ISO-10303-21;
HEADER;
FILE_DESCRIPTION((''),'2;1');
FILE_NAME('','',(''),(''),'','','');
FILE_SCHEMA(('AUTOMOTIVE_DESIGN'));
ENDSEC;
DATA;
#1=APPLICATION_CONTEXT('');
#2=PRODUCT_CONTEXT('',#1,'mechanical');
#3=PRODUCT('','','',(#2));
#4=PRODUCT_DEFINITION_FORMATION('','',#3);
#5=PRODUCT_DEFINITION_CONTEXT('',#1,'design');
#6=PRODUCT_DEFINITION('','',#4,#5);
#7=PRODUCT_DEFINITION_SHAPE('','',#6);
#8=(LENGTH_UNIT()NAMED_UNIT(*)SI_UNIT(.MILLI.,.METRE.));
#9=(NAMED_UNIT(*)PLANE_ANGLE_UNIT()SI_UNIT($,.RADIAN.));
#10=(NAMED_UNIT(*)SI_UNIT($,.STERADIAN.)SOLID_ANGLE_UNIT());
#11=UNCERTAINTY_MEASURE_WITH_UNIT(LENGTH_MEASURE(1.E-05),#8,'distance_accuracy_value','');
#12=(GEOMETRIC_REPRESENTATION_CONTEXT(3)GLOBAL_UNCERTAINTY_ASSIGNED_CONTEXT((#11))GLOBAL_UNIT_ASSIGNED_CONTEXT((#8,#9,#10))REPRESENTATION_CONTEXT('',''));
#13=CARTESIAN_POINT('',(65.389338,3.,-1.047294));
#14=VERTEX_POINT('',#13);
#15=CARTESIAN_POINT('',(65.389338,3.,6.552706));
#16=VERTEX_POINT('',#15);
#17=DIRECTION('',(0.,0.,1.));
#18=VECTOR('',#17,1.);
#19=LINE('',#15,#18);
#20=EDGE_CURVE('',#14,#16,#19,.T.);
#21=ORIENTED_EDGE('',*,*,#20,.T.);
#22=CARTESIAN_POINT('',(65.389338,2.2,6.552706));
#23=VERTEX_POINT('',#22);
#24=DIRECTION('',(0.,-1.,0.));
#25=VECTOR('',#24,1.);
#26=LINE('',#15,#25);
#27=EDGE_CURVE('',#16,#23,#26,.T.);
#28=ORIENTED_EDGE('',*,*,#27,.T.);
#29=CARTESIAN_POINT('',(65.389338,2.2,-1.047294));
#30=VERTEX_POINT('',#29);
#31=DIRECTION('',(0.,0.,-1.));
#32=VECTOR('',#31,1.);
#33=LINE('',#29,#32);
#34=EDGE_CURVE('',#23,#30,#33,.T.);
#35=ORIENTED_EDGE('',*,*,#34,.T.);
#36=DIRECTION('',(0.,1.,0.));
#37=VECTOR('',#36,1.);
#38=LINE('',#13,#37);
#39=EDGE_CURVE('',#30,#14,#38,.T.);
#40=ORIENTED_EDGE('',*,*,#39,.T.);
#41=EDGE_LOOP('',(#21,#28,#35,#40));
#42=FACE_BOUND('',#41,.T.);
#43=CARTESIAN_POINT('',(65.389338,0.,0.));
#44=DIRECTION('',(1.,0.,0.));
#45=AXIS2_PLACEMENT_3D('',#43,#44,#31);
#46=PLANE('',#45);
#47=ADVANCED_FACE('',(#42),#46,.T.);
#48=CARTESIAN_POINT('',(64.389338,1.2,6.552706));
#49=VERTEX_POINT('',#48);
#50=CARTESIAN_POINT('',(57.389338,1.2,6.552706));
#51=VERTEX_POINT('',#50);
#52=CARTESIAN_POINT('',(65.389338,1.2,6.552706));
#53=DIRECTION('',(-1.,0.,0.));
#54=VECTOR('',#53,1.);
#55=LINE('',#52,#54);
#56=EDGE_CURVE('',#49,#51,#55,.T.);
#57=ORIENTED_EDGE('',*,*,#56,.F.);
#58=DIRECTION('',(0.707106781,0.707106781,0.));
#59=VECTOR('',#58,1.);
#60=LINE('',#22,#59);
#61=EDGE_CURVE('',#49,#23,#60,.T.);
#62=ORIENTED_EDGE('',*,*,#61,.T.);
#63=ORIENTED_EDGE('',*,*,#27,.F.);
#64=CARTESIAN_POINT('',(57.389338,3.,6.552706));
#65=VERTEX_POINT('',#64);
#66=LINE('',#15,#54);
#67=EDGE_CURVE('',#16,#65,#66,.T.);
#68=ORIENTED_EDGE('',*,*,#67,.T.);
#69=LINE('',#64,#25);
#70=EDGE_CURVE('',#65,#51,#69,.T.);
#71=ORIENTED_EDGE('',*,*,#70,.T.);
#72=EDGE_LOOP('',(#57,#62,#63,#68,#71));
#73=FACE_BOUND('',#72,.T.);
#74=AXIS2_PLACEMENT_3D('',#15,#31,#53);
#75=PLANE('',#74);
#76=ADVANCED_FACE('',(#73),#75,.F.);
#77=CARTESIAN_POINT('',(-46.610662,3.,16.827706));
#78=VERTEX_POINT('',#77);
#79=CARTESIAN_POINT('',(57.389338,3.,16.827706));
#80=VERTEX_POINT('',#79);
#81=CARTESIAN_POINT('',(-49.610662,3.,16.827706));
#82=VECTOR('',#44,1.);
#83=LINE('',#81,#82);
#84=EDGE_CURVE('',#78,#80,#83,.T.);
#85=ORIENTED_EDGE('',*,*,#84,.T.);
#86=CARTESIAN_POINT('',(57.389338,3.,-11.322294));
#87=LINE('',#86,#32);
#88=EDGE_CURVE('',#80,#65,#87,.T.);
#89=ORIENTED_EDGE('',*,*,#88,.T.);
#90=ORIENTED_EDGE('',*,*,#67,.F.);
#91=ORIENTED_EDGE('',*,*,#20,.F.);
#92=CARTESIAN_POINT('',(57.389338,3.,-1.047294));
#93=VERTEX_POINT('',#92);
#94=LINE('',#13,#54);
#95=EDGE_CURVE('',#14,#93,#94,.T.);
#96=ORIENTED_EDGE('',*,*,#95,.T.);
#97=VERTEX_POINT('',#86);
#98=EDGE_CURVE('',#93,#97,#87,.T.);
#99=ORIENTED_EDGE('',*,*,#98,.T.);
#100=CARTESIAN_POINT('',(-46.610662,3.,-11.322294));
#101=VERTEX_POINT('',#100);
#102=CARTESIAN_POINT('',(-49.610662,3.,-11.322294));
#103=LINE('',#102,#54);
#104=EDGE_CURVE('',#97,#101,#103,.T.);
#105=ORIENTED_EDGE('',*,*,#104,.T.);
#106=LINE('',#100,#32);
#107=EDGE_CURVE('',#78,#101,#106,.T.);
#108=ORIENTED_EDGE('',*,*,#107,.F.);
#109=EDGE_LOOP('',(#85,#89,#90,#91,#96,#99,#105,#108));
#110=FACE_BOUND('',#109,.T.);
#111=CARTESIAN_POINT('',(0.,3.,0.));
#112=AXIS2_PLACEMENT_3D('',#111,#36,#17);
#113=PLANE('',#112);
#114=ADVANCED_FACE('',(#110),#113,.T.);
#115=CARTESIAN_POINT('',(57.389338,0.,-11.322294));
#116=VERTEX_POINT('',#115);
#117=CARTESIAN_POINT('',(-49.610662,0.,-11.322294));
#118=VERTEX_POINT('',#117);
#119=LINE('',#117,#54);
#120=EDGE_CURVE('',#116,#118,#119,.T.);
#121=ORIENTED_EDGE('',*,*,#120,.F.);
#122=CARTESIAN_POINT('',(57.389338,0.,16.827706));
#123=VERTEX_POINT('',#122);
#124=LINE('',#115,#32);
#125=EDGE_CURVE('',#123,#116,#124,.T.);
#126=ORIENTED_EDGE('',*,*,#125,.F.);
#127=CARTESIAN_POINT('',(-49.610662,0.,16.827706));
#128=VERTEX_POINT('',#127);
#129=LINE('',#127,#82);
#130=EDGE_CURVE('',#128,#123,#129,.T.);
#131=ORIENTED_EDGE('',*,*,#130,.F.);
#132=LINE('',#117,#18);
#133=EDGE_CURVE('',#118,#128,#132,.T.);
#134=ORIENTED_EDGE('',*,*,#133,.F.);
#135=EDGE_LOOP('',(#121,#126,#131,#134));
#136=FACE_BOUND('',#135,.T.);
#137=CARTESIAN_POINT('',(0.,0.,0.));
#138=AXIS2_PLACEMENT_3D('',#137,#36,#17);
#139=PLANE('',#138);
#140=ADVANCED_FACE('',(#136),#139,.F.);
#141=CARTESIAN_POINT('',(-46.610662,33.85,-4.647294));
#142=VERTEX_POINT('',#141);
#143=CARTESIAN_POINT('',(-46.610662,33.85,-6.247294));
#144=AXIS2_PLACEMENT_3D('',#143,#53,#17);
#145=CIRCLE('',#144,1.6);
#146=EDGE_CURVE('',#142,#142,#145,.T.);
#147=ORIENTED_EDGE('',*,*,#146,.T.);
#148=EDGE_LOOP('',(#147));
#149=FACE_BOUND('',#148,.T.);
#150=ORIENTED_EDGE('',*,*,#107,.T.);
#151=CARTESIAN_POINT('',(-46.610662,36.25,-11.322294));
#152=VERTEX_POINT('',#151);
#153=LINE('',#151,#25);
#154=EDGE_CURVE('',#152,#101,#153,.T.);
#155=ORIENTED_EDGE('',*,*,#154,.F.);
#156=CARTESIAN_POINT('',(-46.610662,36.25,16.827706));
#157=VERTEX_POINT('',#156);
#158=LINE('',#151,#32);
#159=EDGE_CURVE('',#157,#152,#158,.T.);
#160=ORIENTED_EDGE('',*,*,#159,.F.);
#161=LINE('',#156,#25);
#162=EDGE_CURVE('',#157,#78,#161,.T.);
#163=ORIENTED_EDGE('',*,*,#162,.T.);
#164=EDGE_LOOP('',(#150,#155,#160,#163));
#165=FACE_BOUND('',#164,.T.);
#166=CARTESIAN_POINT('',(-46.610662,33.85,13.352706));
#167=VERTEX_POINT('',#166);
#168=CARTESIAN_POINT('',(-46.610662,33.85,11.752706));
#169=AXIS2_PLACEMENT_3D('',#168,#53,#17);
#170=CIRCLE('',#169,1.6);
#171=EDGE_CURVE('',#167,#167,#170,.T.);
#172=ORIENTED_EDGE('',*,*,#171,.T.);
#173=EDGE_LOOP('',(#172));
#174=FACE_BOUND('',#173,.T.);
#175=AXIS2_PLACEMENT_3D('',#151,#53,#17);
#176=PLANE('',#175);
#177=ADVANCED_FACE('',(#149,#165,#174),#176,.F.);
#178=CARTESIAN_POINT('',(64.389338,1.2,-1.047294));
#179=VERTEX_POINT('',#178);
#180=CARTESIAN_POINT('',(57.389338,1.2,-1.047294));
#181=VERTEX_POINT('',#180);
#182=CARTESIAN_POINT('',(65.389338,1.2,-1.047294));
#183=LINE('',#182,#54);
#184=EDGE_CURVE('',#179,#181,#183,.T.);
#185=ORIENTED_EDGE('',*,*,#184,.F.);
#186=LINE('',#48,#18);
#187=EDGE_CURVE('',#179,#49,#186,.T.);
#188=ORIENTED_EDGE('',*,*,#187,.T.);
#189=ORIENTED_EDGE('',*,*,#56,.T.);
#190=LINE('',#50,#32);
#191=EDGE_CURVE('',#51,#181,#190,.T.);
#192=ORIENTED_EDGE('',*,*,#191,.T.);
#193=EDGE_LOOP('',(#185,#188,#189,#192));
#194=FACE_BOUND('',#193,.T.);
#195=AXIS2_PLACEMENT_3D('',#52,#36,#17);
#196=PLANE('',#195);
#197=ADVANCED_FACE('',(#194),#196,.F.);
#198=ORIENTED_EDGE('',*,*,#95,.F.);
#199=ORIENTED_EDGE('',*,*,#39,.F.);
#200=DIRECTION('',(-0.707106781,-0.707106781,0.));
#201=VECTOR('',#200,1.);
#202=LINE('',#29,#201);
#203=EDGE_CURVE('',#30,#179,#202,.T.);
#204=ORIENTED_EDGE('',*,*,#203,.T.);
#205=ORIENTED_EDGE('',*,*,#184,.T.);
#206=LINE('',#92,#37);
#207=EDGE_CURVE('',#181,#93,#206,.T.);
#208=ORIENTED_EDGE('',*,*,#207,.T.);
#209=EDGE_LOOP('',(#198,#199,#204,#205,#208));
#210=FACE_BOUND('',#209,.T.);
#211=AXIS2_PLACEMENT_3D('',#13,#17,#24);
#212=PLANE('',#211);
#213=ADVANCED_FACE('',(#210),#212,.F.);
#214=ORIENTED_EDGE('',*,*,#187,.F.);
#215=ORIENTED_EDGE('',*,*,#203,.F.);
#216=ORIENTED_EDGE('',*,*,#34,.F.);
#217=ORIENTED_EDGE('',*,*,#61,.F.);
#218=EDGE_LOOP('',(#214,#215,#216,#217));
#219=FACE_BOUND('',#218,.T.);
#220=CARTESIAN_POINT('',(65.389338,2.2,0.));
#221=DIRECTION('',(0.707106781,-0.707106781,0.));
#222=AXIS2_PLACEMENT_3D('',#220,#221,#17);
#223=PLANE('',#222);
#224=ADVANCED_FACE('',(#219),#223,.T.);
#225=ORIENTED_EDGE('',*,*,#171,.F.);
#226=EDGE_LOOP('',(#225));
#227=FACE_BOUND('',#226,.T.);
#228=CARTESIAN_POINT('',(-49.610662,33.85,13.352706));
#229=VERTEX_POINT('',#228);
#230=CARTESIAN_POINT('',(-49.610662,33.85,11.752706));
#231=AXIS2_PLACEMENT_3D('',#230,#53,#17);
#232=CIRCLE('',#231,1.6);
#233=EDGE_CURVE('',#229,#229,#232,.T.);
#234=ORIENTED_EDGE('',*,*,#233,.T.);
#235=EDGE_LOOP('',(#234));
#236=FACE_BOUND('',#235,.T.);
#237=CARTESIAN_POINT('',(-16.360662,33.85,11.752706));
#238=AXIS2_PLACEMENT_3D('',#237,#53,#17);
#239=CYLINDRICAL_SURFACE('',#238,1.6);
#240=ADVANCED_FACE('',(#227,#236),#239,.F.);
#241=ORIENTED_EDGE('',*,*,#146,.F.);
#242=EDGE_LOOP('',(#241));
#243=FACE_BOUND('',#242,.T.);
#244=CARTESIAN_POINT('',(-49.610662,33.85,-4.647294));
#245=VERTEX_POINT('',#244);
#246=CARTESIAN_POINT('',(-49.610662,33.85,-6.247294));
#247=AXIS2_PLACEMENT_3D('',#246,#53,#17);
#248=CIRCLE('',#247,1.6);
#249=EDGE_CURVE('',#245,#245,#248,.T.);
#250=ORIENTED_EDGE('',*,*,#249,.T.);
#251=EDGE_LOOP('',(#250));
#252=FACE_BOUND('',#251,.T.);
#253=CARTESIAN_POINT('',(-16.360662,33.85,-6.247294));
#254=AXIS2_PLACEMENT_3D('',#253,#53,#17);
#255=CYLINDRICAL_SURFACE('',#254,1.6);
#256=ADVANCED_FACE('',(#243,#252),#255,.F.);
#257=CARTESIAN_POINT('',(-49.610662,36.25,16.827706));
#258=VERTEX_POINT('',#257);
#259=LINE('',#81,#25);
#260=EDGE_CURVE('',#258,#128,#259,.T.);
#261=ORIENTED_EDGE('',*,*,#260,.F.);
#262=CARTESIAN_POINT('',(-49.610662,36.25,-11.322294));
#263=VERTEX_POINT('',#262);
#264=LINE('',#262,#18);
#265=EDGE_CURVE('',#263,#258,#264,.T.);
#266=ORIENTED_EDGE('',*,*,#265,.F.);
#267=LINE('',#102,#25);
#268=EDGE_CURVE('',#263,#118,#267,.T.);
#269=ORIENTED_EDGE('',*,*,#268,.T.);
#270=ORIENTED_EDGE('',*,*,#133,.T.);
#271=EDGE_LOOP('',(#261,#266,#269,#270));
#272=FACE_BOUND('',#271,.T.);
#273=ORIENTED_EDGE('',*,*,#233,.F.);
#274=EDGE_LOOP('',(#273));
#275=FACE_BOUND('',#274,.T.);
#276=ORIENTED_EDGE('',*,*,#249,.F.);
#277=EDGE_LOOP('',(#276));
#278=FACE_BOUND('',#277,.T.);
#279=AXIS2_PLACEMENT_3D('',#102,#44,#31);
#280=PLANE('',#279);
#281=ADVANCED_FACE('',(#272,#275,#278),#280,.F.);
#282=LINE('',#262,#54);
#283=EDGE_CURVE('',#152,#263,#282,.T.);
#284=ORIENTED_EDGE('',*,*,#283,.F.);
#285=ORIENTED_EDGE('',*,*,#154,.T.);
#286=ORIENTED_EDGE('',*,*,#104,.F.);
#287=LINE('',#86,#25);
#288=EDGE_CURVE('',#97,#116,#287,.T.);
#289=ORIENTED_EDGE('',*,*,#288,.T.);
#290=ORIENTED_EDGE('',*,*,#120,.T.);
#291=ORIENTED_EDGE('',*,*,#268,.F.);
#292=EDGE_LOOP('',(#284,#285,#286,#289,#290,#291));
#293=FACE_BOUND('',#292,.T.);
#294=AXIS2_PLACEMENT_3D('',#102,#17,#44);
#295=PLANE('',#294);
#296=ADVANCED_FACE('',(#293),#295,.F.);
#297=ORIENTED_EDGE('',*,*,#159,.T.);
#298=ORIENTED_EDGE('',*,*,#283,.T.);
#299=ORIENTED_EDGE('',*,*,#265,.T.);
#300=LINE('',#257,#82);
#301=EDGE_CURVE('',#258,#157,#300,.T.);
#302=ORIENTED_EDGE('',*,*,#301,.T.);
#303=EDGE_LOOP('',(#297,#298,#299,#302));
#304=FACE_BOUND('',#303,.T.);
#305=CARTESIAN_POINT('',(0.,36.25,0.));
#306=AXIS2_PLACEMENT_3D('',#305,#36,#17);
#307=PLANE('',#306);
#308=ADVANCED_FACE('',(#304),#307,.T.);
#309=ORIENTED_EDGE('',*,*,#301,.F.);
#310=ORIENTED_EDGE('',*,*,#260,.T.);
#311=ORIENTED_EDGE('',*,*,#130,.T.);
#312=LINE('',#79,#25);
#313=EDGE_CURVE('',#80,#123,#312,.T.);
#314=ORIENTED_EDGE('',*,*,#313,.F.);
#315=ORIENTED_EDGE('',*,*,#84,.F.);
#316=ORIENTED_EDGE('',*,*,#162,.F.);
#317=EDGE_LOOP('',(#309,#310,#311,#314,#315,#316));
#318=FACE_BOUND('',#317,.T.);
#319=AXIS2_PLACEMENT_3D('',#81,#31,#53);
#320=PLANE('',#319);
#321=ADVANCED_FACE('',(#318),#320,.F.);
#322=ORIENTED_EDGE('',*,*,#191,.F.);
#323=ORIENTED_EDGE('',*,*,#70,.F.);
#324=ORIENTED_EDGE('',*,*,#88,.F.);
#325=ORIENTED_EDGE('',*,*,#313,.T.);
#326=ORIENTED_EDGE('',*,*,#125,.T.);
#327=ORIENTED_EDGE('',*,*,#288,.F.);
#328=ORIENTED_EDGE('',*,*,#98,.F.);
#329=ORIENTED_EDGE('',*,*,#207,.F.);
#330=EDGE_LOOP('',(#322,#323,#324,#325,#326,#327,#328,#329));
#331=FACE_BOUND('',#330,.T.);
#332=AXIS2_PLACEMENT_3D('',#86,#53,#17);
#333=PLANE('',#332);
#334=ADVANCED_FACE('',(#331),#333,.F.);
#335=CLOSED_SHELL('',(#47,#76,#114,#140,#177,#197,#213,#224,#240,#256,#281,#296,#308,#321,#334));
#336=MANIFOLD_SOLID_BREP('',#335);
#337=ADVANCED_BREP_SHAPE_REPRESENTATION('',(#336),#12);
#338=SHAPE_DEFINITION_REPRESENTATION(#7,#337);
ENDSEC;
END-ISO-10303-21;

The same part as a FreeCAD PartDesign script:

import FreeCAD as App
import Part
import Sketcher


def edges_at(feature, points):
    """Names of the edges that pass closest to the given points."""
    edges = feature.Shape.Edges
    near = lambda p: min(range(len(edges)), key=lambda i: edges[i].distToShape(Part.Vertex(*p))[0])
    return sorted({f"Edge{near(p) + 1}" for p in points})

doc = App.newDocument("Part")
body = doc.addObject("PartDesign::Body", "Body")

# Sketch on XZ plane
sketch1 = doc.addObject("Sketcher::SketchObject", "Sketch")
body.addObject(sketch1)
sketch1.AttachmentSupport = (doc.XZ_Plane, [""])
sketch1.MapMode = "FlatFace"
sketch1.addGeometry([
    Part.LineSegment(App.Vector(-50, -11, 0), App.Vector(-50, 17, 0)),
    Part.LineSegment(App.Vector(-50, 17, 0), App.Vector(57, 17, 0)),
    Part.LineSegment(App.Vector(57, 17, 0), App.Vector(57, -11, 0)),
    Part.LineSegment(App.Vector(57, -11, 0), App.Vector(-50, -11, 0)),
], False)
sketch1.addConstraint([
    Sketcher.Constraint("Coincident", 0, 2, 1, 1),
    Sketcher.Constraint("Coincident", 1, 2, 2, 1),
    Sketcher.Constraint("Coincident", 2, 2, 3, 1),
    Sketcher.Constraint("Coincident", 3, 2, 0, 1),
    Sketcher.Constraint("Vertical", 0),
    Sketcher.Constraint("Horizontal", 1),
    Sketcher.Constraint("Vertical", 2),
    Sketcher.Constraint("Horizontal", 3),
    Sketcher.Constraint("DistanceX", 1, 1, 1, 2, 107.0),
    Sketcher.Constraint("DistanceY", 0, 1, 0, 2, 28.15),
    Sketcher.Constraint("DistanceX", 0, 2, -1, 1, 49.610662),
    Sketcher.Constraint("DistanceY", -1, 1, 0, 2, 16.827706),
])
pad1 = doc.addObject("PartDesign::Pad", "Pad")
body.addObject(pad1)
pad1.Profile = sketch1
pad1.Length = 3
pad1.Reversed = True

# Sketch on YZ plane
sketch2 = doc.addObject("Sketcher::SketchObject", "Sketch001")
body.addObject(sketch2)
sketch2.AttachmentSupport = (doc.YZ_Plane, [""])
sketch2.MapMode = "FlatFace"
sketch2.AttachmentOffset = App.Placement(App.Vector(0, 0, 57.389338), App.Rotation())
sketch2.addGeometry([
    Part.LineSegment(App.Vector(3, 6.6, 0), App.Vector(1.2, 6.6, 0)),
    Part.LineSegment(App.Vector(1.2, 6.6, 0), App.Vector(1.2, -1, 0)),
    Part.LineSegment(App.Vector(1.2, -1, 0), App.Vector(3, -1, 0)),
    Part.LineSegment(App.Vector(3, -1, 0), App.Vector(3, 6.6, 0)),
], False)
sketch2.addConstraint([
    Sketcher.Constraint("Coincident", 0, 2, 1, 1),
    Sketcher.Constraint("Coincident", 1, 2, 2, 1),
    Sketcher.Constraint("Coincident", 2, 2, 3, 1),
    Sketcher.Constraint("Coincident", 3, 2, 0, 1),
    Sketcher.Constraint("Horizontal", 0),
    Sketcher.Constraint("Vertical", 1),
    Sketcher.Constraint("Horizontal", 2),
    Sketcher.Constraint("Vertical", 3),
    Sketcher.Constraint("DistanceX", 0, 2, 0, 1, 1.8),
    Sketcher.Constraint("DistanceY", 1, 2, 1, 1, 7.6),
    Sketcher.Constraint("DistanceX", -1, 1, 2, 2, 3.0),
    Sketcher.Constraint("DistanceY", -1, 1, 0, 2, 6.552706),
])
pad2 = doc.addObject("PartDesign::Pad", "Pad001")
body.addObject(pad2)
pad2.Profile = sketch2
pad2.Length = 8
doc.recompute()

chamfer = doc.addObject("PartDesign::Chamfer", "Chamfer")
body.addObject(chamfer)
chamfer.Base = (pad2, edges_at(pad2, [(65.389, 1.2, 2.753)]))
chamfer.Size = 1

# Sketch on XZ plane
sketch3 = doc.addObject("Sketcher::SketchObject", "Sketch002")
body.addObject(sketch3)
sketch3.AttachmentSupport = (doc.XZ_Plane, [""])
sketch3.MapMode = "FlatFace"
sketch3.AttachmentOffset = App.Placement(App.Vector(0, 0, -3), App.Rotation())
sketch3.addGeometry([
    Part.LineSegment(App.Vector(-49.6, -11.3, 0), App.Vector(-49.6, 16.8, 0)),
    Part.LineSegment(App.Vector(-49.6, 16.8, 0), App.Vector(-46.6, 16.8, 0)),
    Part.LineSegment(App.Vector(-46.6, 16.8, 0), App.Vector(-46.6, -11.3, 0)),
    Part.LineSegment(App.Vector(-46.6, -11.3, 0), App.Vector(-49.6, -11.3, 0)),
], False)
sketch3.addConstraint([
    Sketcher.Constraint("Coincident", 0, 2, 1, 1),
    Sketcher.Constraint("Coincident", 1, 2, 2, 1),
    Sketcher.Constraint("Coincident", 2, 2, 3, 1),
    Sketcher.Constraint("Coincident", 3, 2, 0, 1),
    Sketcher.Constraint("Vertical", 0),
    Sketcher.Constraint("Horizontal", 1),
    Sketcher.Constraint("Vertical", 2),
    Sketcher.Constraint("Horizontal", 3),
    Sketcher.Constraint("DistanceX", 1, 1, 1, 2, 3.0),
    Sketcher.Constraint("DistanceY", 0, 1, 0, 2, 28.15),
    Sketcher.Constraint("DistanceX", 0, 2, -1, 1, 49.610662),
    Sketcher.Constraint("DistanceY", -1, 1, 0, 2, 16.827706),
])
pad3 = doc.addObject("PartDesign::Pad", "Pad002")
body.addObject(pad3)
pad3.Profile = sketch3
pad3.Length = 33.25
pad3.Reversed = True

# Sketch on YZ plane
sketch4 = doc.addObject("Sketcher::SketchObject", "Sketch003")
body.addObject(sketch4)
sketch4.AttachmentSupport = (doc.YZ_Plane, [""])
sketch4.MapMode = "FlatFace"
sketch4.AttachmentOffset = App.Placement(App.Vector(0, 0, -49.610662), App.Rotation())
sketch4.addGeometry([
    Part.Circle(App.Vector(33.9, -6.2, 0), App.Vector(0, 0, 1), 1.6),
    Part.Circle(App.Vector(33.9, 11.8, 0), App.Vector(0, 0, 1), 1.6),
], False)
sketch4.addConstraint([
    Sketcher.Constraint("Equal", 0, 1),
    Sketcher.Constraint("Vertical", 0, 3, 1, 3),
    Sketcher.Constraint("Diameter", 0, 3.2),
    Sketcher.Constraint("DistanceY", 0, 3, 1, 3, 18.0),
    Sketcher.Constraint("DistanceX", -1, 1, 0, 3, 33.85),
    Sketcher.Constraint("DistanceY", 0, 3, -1, 1, 6.247294),
])
pocket1 = doc.addObject("PartDesign::Pocket", "Pocket")
body.addObject(pocket1)
pocket1.Profile = sketch4
pocket1.Length = 33.25
pocket1.Reversed = True

doc.recompute()
